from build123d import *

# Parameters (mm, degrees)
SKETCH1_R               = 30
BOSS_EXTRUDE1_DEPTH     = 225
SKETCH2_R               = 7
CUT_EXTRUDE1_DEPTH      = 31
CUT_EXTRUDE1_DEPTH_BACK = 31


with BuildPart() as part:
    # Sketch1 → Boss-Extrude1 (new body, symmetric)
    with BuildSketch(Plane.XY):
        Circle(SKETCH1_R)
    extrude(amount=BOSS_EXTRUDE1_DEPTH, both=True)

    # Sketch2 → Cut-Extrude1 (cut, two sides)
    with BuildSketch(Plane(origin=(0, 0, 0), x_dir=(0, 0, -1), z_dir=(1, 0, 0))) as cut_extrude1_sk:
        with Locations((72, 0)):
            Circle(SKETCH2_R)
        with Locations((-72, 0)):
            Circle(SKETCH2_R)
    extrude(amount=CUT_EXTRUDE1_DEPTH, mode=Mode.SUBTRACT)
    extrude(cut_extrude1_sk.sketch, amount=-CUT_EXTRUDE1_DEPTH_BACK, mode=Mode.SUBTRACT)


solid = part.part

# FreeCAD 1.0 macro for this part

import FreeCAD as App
import Part
import Sketcher

doc = App.newDocument("Part")
body = doc.addObject("PartDesign::Body", "Body")

sketch1 = body.newObject("Sketcher::SketchObject", "Sketch")
sketch1.AttachmentSupport = (doc.getObject("XY_Plane"), [""])
sketch1.MapMode = "FlatFace"
sketch1.addGeometry(Part.Circle(App.Vector(0, 0, 0), App.Vector(0, 0, 1), 30), False)
sketch1.addConstraint([
    Sketcher.Constraint("Coincident", 0, 3, -1, 1),
    Sketcher.Constraint("Diameter", 0, 60.0),
])
pad1 = body.newObject("PartDesign::Pad", "Pad")
pad1.Profile = sketch1
pad1.Length = 450
pad1.Midplane = True

sketch2 = body.newObject("Sketcher::SketchObject", "Sketch001")
sketch2.AttachmentSupport = (doc.getObject("YZ_Plane"), [""])
sketch2.MapMode = "FlatFace"
sketch2.addGeometry([
    Part.Circle(App.Vector(0, -72, 0), App.Vector(0, 0, 1), 7),
    Part.Circle(App.Vector(0, 72, 0), App.Vector(0, 0, 1), 7),
], False)
sketch2.addConstraint([
    Sketcher.Constraint("Equal", 0, 1),
    Sketcher.Constraint("Symmetric", 0, 3, 1, 3, -1, 1),
    Sketcher.Constraint("PointOnObject", 0, 3, -2),
    Sketcher.Constraint("Diameter", 0, 14.0),
    Sketcher.Constraint("DistanceY", 0, 3, -1, 1, 72.0),
])
pocket1 = body.newObject("PartDesign::Pocket", "Pocket")
pocket1.Profile = sketch2
pocket1.Type = "ThroughAll"
pocket1.Midplane = True

doc.recompute()
